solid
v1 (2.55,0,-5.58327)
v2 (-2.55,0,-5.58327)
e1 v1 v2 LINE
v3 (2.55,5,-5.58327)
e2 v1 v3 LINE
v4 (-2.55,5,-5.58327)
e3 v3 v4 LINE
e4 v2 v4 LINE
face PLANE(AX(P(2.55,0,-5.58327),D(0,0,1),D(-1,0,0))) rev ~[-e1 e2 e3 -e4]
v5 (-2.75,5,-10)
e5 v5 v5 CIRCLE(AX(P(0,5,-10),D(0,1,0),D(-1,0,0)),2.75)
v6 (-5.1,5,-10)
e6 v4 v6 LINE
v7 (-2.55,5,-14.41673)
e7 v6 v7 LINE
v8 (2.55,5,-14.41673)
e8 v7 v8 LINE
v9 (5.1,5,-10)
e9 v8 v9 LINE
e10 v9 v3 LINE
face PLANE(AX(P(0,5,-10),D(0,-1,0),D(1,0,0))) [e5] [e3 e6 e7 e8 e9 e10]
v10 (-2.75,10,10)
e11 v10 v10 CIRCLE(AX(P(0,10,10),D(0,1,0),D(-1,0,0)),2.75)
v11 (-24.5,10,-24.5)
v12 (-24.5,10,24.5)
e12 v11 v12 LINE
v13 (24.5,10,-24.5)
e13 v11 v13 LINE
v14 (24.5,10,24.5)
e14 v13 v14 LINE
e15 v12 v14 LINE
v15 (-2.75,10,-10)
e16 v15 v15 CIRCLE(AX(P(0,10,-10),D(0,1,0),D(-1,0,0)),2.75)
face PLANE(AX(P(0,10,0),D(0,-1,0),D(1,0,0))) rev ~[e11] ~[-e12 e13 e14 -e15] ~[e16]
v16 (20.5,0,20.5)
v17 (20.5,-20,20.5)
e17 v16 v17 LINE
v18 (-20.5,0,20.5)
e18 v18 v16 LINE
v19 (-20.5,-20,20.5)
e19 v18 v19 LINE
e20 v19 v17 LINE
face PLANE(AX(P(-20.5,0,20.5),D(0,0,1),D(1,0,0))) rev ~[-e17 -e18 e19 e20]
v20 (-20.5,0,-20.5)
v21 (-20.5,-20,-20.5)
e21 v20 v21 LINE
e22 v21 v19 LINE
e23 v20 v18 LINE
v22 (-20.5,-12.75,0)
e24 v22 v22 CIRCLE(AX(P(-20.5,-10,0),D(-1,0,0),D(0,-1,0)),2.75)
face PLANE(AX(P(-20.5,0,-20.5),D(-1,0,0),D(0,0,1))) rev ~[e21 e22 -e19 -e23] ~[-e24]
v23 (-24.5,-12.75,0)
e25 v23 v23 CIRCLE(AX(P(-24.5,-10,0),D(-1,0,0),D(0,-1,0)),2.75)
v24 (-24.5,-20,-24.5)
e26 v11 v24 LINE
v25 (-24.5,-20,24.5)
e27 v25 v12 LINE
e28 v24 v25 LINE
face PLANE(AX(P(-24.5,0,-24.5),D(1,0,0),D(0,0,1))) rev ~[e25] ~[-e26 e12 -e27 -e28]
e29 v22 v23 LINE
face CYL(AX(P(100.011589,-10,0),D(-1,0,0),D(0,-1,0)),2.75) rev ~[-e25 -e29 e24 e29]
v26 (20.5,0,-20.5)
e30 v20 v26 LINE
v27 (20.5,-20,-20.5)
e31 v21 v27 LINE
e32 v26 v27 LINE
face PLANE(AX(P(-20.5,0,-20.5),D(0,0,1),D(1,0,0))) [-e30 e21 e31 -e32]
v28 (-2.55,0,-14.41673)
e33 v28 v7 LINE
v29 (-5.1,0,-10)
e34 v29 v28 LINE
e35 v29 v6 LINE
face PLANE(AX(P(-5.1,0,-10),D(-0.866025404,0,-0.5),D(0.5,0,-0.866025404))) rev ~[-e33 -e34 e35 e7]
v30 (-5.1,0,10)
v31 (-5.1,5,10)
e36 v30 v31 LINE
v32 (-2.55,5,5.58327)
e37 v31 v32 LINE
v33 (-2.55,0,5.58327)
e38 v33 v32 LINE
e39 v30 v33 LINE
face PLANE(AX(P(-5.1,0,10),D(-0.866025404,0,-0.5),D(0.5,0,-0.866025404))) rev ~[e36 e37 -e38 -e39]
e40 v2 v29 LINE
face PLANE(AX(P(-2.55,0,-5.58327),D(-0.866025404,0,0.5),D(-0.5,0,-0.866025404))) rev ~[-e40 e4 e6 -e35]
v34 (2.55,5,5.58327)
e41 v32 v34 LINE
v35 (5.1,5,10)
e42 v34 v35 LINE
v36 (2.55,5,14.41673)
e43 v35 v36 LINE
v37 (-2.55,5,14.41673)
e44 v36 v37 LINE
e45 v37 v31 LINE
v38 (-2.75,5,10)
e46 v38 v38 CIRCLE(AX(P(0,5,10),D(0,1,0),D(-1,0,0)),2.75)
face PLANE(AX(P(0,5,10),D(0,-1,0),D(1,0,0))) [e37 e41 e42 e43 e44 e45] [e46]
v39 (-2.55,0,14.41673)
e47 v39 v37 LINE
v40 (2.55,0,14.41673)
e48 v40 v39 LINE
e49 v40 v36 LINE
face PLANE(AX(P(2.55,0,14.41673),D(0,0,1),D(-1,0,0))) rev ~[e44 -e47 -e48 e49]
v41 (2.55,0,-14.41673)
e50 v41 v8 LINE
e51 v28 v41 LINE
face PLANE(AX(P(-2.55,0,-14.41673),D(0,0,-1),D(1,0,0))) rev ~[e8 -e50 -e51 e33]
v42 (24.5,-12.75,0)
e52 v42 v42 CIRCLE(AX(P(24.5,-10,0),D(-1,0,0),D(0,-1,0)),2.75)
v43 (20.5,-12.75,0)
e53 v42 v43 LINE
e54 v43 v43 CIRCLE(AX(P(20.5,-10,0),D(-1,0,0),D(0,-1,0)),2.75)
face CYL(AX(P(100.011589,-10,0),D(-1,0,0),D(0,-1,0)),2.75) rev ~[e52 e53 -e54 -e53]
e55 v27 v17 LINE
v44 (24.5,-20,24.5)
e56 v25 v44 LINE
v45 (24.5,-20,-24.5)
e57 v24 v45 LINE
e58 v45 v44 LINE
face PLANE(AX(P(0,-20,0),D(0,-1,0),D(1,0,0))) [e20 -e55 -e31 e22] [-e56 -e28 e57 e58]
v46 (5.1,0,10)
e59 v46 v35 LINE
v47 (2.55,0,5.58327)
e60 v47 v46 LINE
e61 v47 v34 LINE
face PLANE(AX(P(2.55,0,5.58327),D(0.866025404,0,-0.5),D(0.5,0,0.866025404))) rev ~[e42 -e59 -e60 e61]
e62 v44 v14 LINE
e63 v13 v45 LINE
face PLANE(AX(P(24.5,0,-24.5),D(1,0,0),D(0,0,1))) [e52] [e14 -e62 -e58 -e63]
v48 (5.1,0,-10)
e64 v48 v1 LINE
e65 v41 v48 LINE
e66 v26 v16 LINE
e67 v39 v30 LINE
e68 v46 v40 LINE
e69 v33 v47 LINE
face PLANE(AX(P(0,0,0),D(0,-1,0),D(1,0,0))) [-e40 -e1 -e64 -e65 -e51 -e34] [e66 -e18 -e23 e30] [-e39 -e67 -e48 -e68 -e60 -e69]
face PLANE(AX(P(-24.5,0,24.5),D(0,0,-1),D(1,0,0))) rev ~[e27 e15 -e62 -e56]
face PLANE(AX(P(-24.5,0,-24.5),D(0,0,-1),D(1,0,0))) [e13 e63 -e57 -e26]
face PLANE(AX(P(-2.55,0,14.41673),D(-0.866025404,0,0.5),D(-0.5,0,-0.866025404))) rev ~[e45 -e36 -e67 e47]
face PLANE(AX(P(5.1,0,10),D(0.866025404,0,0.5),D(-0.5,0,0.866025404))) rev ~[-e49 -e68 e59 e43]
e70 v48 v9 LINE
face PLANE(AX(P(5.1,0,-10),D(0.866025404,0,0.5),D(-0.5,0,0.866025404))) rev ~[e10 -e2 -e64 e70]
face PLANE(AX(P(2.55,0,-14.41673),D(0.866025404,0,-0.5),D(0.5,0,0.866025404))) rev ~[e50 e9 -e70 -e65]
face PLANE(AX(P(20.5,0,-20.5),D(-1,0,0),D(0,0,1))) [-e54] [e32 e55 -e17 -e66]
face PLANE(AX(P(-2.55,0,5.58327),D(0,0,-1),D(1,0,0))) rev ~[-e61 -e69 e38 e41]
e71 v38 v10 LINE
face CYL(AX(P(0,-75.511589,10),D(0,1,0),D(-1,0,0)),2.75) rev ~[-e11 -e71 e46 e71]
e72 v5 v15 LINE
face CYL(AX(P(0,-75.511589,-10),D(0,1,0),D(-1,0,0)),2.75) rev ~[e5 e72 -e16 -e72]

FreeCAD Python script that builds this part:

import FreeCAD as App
import Part
import Sketcher
Q = App.Units.Quantity


def add_polygon(sketch, points):
    """Adds a closed chain of lines whose ends are joined by coincident constraints."""
    first, n = sketch.GeometryCount, len(points)
    for a, b in zip(points, points[1:] + points[:1]):
        sketch.addGeometry(Part.LineSegment(App.Vector(*a, 0), App.Vector(*b, 0)), False)
    for i in range(n):
        sketch.addConstraint(Sketcher.Constraint("Coincident", first + i, 2, first + (i + 1) % n, 1))

doc = App.newDocument("Part")
body = doc.addObject("PartDesign::Body", "Body")

sketch1 = body.newObject("Sketcher::SketchObject", "Sketch")
sketch1.AttachmentSupport = (doc.getObject("XZ_Plane"), [""])
sketch1.MapMode = "FlatFace"
add_polygon(sketch1, [(-24, 24), (-24, -24), (24, -24), (24, 24)])
add_polygon(sketch1, [(20, -20), (-20, -20), (-20, 20), (20, 20)])
sketch1.addConstraint([
    Sketcher.Constraint("Vertical", 0),
    Sketcher.Constraint("Horizontal", 1),
    Sketcher.Constraint("Vertical", 2),
    Sketcher.Constraint("Horizontal", 3),
    Sketcher.Constraint("Horizontal", 4),
    Sketcher.Constraint("Vertical", 5),
    Sketcher.Constraint("Horizontal", 6),
    Sketcher.Constraint("Vertical", 7),
    Sketcher.Constraint("Symmetric", 0, 2, 2, 2, -1, 1),
    Sketcher.Constraint("Symmetric", 4, 2, 6, 2, -1, 1),
    Sketcher.Constraint("Equal", 3, 0),
    Sketcher.Constraint("Equal", 6, 5),
    Sketcher.Constraint("DistanceX", 1, 1, 1, 2, Q("49 mm")),
    Sketcher.Constraint("DistanceX", 4, 2, 4, 1, Q("41 mm")),
])
pad1 = body.newObject("PartDesign::Pad", "Pad")
pad1.Profile = sketch1
pad1.Length = 20

sketch2 = body.newObject("Sketcher::SketchObject", "Sketch001")
sketch2.AttachmentSupport = (doc.getObject("XZ_Plane"), [""])
sketch2.MapMode = "FlatFace"
add_polygon(sketch2, [(-24, 24), (-24, -24), (24, -24), (24, 24)])
sketch2.addConstraint([
    Sketcher.Constraint("Vertical", 0),
    Sketcher.Constraint("Horizontal", 1),
    Sketcher.Constraint("Vertical", 2),
    Sketcher.Constraint("Horizontal", 3),
    Sketcher.Constraint("Symmetric", 0, 2, 2, 2, -1, 1),
    Sketcher.Constraint("Equal", 3, 0),
    Sketcher.Constraint("DistanceX", 1, 1, 1, 2, Q("49 mm")),
])
pad2 = body.newObject("PartDesign::Pad", "Pad001")
pad2.Profile = sketch2
pad2.Length = 10
pad2.Reversed = True

sketch3 = body.newObject("Sketcher::SketchObject", "Sketch002")
sketch3.AttachmentSupport = (doc.getObject("XZ_Plane"), [""])
sketch3.MapMode = "FlatFace"
sketch3.addGeometry([
    Part.Circle(App.Vector(0, 10, 0), App.Vector(0, 0, 1), 2.8),
    Part.Circle(App.Vector(0, -10, 0), App.Vector(0, 0, 1), 2.8),
], False)
sketch3.addConstraint([
    Sketcher.Constraint("Equal", 0, 1),
    Sketcher.Constraint("Symmetric", 0, 3, 1, 3, -1, 1),
    Sketcher.Constraint("PointOnObject", 0, 3, -2),
    Sketcher.Constraint("Diameter", 0, Q("5.5 mm")),
    Sketcher.Constraint("DistanceY", -1, 1, 0, 3, Q("10 mm")),
])
doc.recompute()
hole = body.newObject("PartDesign::Hole", "Hole")
hole.Profile = sketch3
hole.ThreadType = "None"
hole.Diameter = 5.5
hole.DepthType = "ThroughAll"

sketch4 = body.newObject("Sketcher::SketchObject", "Sketch003")
sketch4.AttachmentSupport = (doc.getObject("YZ_Plane"), [""])
sketch4.MapMode = "FlatFace"
sketch4.AttachmentOffset = App.Placement(App.Vector(0, 0, 24.5), App.Rotation())
sketch4.addGeometry(Part.Circle(App.Vector(-10, 0, 0), App.Vector(0, 0, 1), 2.8), False)
sketch4.addConstraint([
    Sketcher.Constraint("PointOnObject", 0, 3, -1),
    Sketcher.Constraint("Diameter", 0, Q("5.5 mm")),
    Sketcher.Constraint("DistanceX", 0, 3, -1, 1, Q("10 mm")),
])
doc.recompute()
hole2 = body.newObject("PartDesign::Hole", "Hole001")
hole2.Profile = sketch4
hole2.ThreadType = "None"
hole2.Diameter = 5.5
hole2.DepthType = "ThroughAll"
body2 = doc.addObject("PartDesign::Body", "Body001")

sketch5 = body2.newObject("Sketcher::SketchObject", "Sketch004")
sketch5.AttachmentSupport = (doc.getObject("XZ_Plane001"), [""])
sketch5.MapMode = "FlatFace"
add_polygon(sketch5, [(5, 10), (3, 14), (-3, 14), (-5, 10), (-3, 6), (3, 6)])
sketch5.addConstraint([
    Sketcher.Constraint("Horizontal", 1),
    Sketcher.Constraint("Horizontal", 4),
    Sketcher.Constraint("Symmetric", 2, 2, 5, 2, -2),
    Sketcher.Constraint("Parallel", 0, 3),
    Sketcher.Constraint("Parallel", 2, 5),
    Sketcher.Constraint("Vertical", 1, 2, 3, 2),
    Sketcher.Constraint("Vertical", 0, 2, 4, 2),
    Sketcher.Constraint("Angle", 0, Q("120 deg")),
    Sketcher.Constraint("DistanceX", 1, 2, 1, 1, Q("5.1 mm")),
    Sketcher.Constraint("DistanceY", -1, 1, 2, 2, Q("10 mm")),
    Sketcher.Constraint("Distance", 0, Q("5.1 mm")),
])
pad3 = body2.newObject("PartDesign::Pad", "Pad002")
pad3.Profile = sketch5
pad3.Length = 5
pad3.Reversed = True
body3 = doc.addObject("PartDesign::Body", "Body002")

sketch6 = body3.newObject("Sketcher::SketchObject", "Sketch005")
sketch6.AttachmentSupport = (doc.getObject("XZ_Plane002"), [""])
sketch6.MapMode = "FlatFace"
add_polygon(sketch6, [(5, -10), (3, -6), (-3, -6), (-5, -10), (-3, -14), (3, -14)])
sketch6.addConstraint([
    Sketcher.Constraint("Horizontal", 1),
    Sketcher.Constraint("Horizontal", 4),
    Sketcher.Constraint("Symmetric", 2, 2, 5, 2, -2),
    Sketcher.Constraint("Parallel", 0, 3),
    Sketcher.Constraint("Parallel", 2, 5),
    Sketcher.Constraint("Vertical", 1, 2, 3, 2),
    Sketcher.Constraint("Vertical", 0, 2, 4, 2),
    Sketcher.Constraint("Angle", 0, Q("120 deg")),
    Sketcher.Constraint("DistanceX", 1, 2, 1, 1, Q("5.1 mm")),
    Sketcher.Constraint("DistanceY", 2, 2, -1, 1, Q("10 mm")),
    Sketcher.Constraint("Distance", 0, Q("5.1 mm")),
])
pad4 = body3.newObject("PartDesign::Pad", "Pad003")
pad4.Profile = sketch6
pad4.Length = 5
pad4.Reversed = True
doc.recompute()

boolean = body.newObject("PartDesign::Boolean", "Boolean")
boolean.Type = "Cut"
boolean.addObjects([body2])
doc.recompute()

boolean2 = body.newObject("PartDesign::Boolean", "Boolean001")
boolean2.Type = "Cut"
boolean2.addObjects([body3])

doc.recompute()
